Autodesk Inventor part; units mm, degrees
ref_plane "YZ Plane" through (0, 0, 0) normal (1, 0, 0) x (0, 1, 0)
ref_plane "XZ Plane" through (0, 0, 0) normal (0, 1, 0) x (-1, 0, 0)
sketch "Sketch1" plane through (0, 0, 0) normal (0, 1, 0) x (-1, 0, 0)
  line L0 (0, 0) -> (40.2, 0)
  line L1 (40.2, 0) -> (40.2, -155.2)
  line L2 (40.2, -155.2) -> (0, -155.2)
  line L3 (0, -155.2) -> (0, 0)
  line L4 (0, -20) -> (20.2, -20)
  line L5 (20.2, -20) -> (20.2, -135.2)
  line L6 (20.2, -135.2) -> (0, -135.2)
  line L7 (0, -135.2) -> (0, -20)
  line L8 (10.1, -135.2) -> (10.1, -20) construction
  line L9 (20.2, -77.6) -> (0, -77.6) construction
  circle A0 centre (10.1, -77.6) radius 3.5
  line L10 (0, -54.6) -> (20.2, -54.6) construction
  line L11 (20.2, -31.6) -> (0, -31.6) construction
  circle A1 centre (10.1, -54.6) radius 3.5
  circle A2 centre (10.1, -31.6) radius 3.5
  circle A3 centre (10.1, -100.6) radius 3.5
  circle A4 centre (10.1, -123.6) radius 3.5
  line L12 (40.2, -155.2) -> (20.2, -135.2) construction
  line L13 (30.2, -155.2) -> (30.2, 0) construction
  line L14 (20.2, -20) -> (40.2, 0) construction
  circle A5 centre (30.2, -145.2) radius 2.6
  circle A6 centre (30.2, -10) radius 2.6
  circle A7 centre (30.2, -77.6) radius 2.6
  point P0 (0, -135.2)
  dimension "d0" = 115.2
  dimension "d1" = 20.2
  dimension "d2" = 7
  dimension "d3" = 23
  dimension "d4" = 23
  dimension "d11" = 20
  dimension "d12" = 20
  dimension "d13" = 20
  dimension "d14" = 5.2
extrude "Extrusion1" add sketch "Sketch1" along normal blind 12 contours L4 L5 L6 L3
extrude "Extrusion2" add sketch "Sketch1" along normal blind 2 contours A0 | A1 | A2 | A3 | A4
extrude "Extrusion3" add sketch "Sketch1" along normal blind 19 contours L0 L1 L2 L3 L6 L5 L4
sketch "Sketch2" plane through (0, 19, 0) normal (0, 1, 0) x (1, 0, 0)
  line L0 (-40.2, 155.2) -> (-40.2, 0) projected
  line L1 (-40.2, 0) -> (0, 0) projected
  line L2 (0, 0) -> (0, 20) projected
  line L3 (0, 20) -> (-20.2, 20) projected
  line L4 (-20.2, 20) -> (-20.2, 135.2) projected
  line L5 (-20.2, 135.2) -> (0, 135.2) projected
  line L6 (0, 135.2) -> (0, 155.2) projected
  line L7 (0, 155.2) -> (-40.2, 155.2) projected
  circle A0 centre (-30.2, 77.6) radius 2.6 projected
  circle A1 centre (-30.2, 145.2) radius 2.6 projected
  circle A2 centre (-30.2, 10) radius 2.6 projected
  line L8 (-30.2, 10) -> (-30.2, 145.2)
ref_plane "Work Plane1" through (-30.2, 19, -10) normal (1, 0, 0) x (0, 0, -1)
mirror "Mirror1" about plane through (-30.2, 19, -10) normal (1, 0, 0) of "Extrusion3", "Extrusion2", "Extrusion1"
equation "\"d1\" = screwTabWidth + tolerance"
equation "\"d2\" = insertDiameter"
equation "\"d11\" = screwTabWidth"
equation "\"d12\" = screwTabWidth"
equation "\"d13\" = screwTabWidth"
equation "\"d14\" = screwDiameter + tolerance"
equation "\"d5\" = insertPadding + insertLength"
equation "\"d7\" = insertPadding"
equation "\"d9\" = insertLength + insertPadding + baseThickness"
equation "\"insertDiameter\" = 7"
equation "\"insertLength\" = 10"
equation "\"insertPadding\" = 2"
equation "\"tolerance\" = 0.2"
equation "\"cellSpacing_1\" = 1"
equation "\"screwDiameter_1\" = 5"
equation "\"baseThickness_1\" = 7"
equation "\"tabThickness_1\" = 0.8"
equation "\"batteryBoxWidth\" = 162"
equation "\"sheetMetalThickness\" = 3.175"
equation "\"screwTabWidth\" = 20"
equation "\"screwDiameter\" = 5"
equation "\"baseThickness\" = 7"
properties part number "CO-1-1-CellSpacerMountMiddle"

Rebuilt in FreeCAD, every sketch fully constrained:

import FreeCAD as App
import Part
import Sketcher
from FreeCAD import Vector

doc = App.newDocument("Part")
params = doc.addObject("Spreadsheet::Sheet", "Params")
for row, (alias, value) in enumerate([
    ("sketch1_diameter", "7 mm"),
    ("sketch1_width", "20.2 mm"),
    ("sketch1_height", "115.2 mm"),
    ("pad1_length", "12 mm"),
    ("sketch2_diameter", "7 mm"),
    ("pad2_length", "2 mm"),
    ("sketch3_diameter", "5.2 mm"),
    ("sketch3_height", "20 mm"),
    ("sketch3_width", "20.2 mm"),
    ("sketch3_height2", "115.2 mm"),
    ("pad3_length", "19 mm"),
], start=1):
    params.set(f"A{row}", alias)
    params.set(f"B{row}", "=" + value)
    params.setAlias(f"B{row}", alias)

body = doc.addObject("PartDesign::Body", "Body")

# Sketch on XZ plane
sketch1 = doc.addObject("Sketcher::SketchObject", "Sketch")
body.addObject(sketch1)
sketch1.AttachmentSupport = (doc.XZ_Plane, [""])
sketch1.MapMode = "FlatFace"
sketch1.addGeometry([
    Part.LineSegment(Vector(-20.2, -20, 0), Vector(0, -20, 0)),  # 0
    Part.LineSegment(Vector(0, -20, 0), Vector(0, -135.2, 0)),  # 1
    Part.LineSegment(Vector(0, -135.2, 0), Vector(-20.2, -135.2, 0)),  # 2
    Part.LineSegment(Vector(-20.2, -135.2, 0), Vector(-20.2, -20, 0)),  # 3
    Part.Circle(Vector(-10.1, -123.6, 0), Vector(0, 0, 1), 3.5),  # 4
    Part.Circle(Vector(-10.1, -100.6, 0), Vector(0, 0, 1), 3.5),  # 5
    Part.Circle(Vector(-10.1, -77.6, 0), Vector(0, 0, 1), 3.5),  # 6
    Part.Circle(Vector(-10.1, -54.6, 0), Vector(0, 0, 1), 3.5),  # 7
    Part.Circle(Vector(-10.1, -31.6, 0), Vector(0, 0, 1), 3.5),  # 8
], False)
sketch1.addConstraint([
    Sketcher.Constraint("Coincident", 0, 2, 1, 1),
    Sketcher.Constraint("Coincident", 1, 2, 2, 1),
    Sketcher.Constraint("Coincident", 2, 2, 3, 1),
    Sketcher.Constraint("Coincident", 3, 2, 0, 1),
    Sketcher.Constraint("Horizontal", 0),
    Sketcher.Constraint("Vertical", 1),
    Sketcher.Constraint("Horizontal", 2),
    Sketcher.Constraint("Vertical", 3),
    Sketcher.Constraint("Equal", 4, 5),
    Sketcher.Constraint("Equal", 5, 6),
    Sketcher.Constraint("Equal", 6, 7),
    Sketcher.Constraint("Equal", 7, 8),
    Sketcher.Constraint("PointOnObject", 0, 2, -2),
    Sketcher.Constraint("Vertical", 4, 3, 5, 3),
    Sketcher.Constraint("Vertical", 5, 3, 6, 3),
    Sketcher.Constraint("Vertical", 6, 3, 7, 3),
    Sketcher.Constraint("Vertical", 7, 3, 8, 3),
    Sketcher.Constraint("Diameter", 4, 7.0),
    Sketcher.Constraint("DistanceX", 0, 1, 0, 2, 20.2),
    Sketcher.Constraint("DistanceY", 1, 2, 1, 1, 115.2),
    Sketcher.Constraint("DistanceY", 0, 2, -1, 1, 20.0),
    Sketcher.Constraint("DistanceY", 4, 3, 5, 3, 23.0),
    Sketcher.Constraint("DistanceY", 5, 3, 6, 3, 23.0),
    Sketcher.Constraint("DistanceY", 6, 3, 7, 3, 23.0),
    Sketcher.Constraint("DistanceY", 7, 3, 8, 3, 23.0),
    Sketcher.Constraint("DistanceX", 4, 3, -1, 1, 10.1),
    Sketcher.Constraint("DistanceY", 4, 3, -1, 1, 123.6),
])
sketch1.setExpression("Constraints[17]", "Params.sketch1_diameter")
sketch1.setExpression("Constraints[18]", "Params.sketch1_width")
sketch1.setExpression("Constraints[19]", "Params.sketch1_height")
pad1 = doc.addObject("PartDesign::Pad", "Pad")
body.addObject(pad1)
pad1.Profile = sketch1
pad1.setExpression("Length", "Params.pad1_length")
pad1.Reversed = True

# Sketch on XZ plane
sketch2 = doc.addObject("Sketcher::SketchObject", "Sketch001")
body.addObject(sketch2)
sketch2.AttachmentSupport = (doc.XZ_Plane, [""])
sketch2.MapMode = "FlatFace"
sketch2.addGeometry([
    Part.Circle(Vector(-10.1, -77.6, 0), Vector(0, 0, 1), 3.5),  # 0
    Part.Circle(Vector(-10.1, -54.6, 0), Vector(0, 0, 1), 3.5),  # 1
    Part.Circle(Vector(-10.1, -31.6, 0), Vector(0, 0, 1), 3.5),  # 2
    Part.Circle(Vector(-10.1, -100.6, 0), Vector(0, 0, 1), 3.5),  # 3
    Part.Circle(Vector(-10.1, -123.6, 0), Vector(0, 0, 1), 3.5),  # 4
], False)
sketch2.addConstraint([
    Sketcher.Constraint("Equal", 0, 1),
    Sketcher.Constraint("Equal", 1, 2),
    Sketcher.Constraint("Equal", 2, 3),
    Sketcher.Constraint("Equal", 3, 4),
    Sketcher.Constraint("Vertical", 0, 3, 1, 3),
    Sketcher.Constraint("Vertical", 1, 3, 2, 3),
    Sketcher.Constraint("Vertical", 2, 3, 3, 3),
    Sketcher.Constraint("Vertical", 3, 3, 4, 3),
    Sketcher.Constraint("Diameter", 0, 7.0),
    Sketcher.Constraint("DistanceY", 0, 3, 1, 3, 23.0),
    Sketcher.Constraint("DistanceY", 1, 3, 2, 3, 23.0),
    Sketcher.Constraint("DistanceY", 3, 3, 0, 3, 23.0),
    Sketcher.Constraint("DistanceY", 4, 3, 3, 3, 23.0),
    Sketcher.Constraint("DistanceX", 0, 3, -1, 1, 10.1),
    Sketcher.Constraint("DistanceY", 0, 3, -1, 1, 77.6),
])
sketch2.setExpression("Constraints[8]", "Params.sketch2_diameter")
pad2 = doc.addObject("PartDesign::Pad", "Pad001")
body.addObject(pad2)
pad2.Profile = sketch2
pad2.setExpression("Length", "Params.pad2_length")
pad2.Reversed = True

# Sketch on XZ plane
sketch3 = doc.addObject("Sketcher::SketchObject", "Sketch002")
body.addObject(sketch3)
sketch3.AttachmentSupport = (doc.XZ_Plane, [""])
sketch3.MapMode = "FlatFace"
sketch3.addGeometry([
    Part.LineSegment(Vector(-40.2, 0, 0), Vector(0, 0, 0)),  # 0
    Part.LineSegment(Vector(0, 0, 0), Vector(0, -20, 0)),  # 1
    Part.LineSegment(Vector(0, -20, 0), Vector(-20.2, -20, 0)),  # 2
    Part.LineSegment(Vector(-20.2, -20, 0), Vector(-20.2, -135.2, 0)),  # 3
    Part.LineSegment(Vector(-20.2, -135.2, 0), Vector(0, -135.2, 0)),  # 4
    Part.LineSegment(Vector(0, -135.2, 0), Vector(0, -155.2, 0)),  # 5
    Part.LineSegment(Vector(0, -155.2, 0), Vector(-40.2, -155.2, 0)),  # 6
    Part.LineSegment(Vector(-40.2, -155.2, 0), Vector(-40.2, 0, 0)),  # 7
    Part.Circle(Vector(-30.2, -145.2, 0), Vector(0, 0, 1), 2.6),  # 8
    Part.Circle(Vector(-30.2, -77.6, 0), Vector(0, 0, 1), 2.6),  # 9
    Part.Circle(Vector(-30.2, -10, 0), Vector(0, 0, 1), 2.6),  # 10
], False)
sketch3.addConstraint([
    Sketcher.Constraint("Coincident", 0, 2, 1, 1),
    Sketcher.Constraint("Coincident", 1, 2, 2, 1),
    Sketcher.Constraint("Coincident", 2, 2, 3, 1),
    Sketcher.Constraint("Coincident", 3, 2, 4, 1),
    Sketcher.Constraint("Coincident", 4, 2, 5, 1),
    Sketcher.Constraint("Coincident", 5, 2, 6, 1),
    Sketcher.Constraint("Coincident", 6, 2, 7, 1),
    Sketcher.Constraint("Coincident", 7, 2, 0, 1),
    Sketcher.Constraint("Horizontal", 0),
    Sketcher.Constraint("Vertical", 1),
    Sketcher.Constraint("Horizontal", 2),
    Sketcher.Constraint("Vertical", 3),
    Sketcher.Constraint("Horizontal", 4),
    Sketcher.Constraint("Vertical", 5),
    Sketcher.Constraint("Horizontal", 6),
    Sketcher.Constraint("Vertical", 7),
    Sketcher.Constraint("Coincident", 0, 2, -1, 1),
    Sketcher.Constraint("Equal", 8, 9),
    Sketcher.Constraint("Equal", 9, 10),
    Sketcher.Constraint("PointOnObject", 4, 2, -2),
    Sketcher.Constraint("Vertical", 8, 3, 9, 3),
    Sketcher.Constraint("Vertical", 9, 3, 10, 3),
    Sketcher.Constraint("Equal", 1, 5),
    Sketcher.Constraint("Diameter", 8, 5.2),
    Sketcher.Constraint("DistanceY", 1, 2, 1, 1, 20.0),
    Sketcher.Constraint("DistanceX", 2, 2, 2, 1, 20.2),
    Sketcher.Constraint("DistanceY", 3, 2, 3, 1, 115.2),
    Sketcher.Constraint("DistanceX", 6, 2, 3, 2, 20.0),
    Sketcher.Constraint("DistanceY", 10, 3, -1, 1, 10.0),
    Sketcher.Constraint("DistanceX", 10, 3, 2, 2, 10.0),
    Sketcher.Constraint("DistanceY", 8, 3, 3, 2, 10.0),
    Sketcher.Constraint("DistanceY", 9, 3, -1, 1, 77.6),
])
sketch3.setExpression("Constraints[23]", "Params.sketch3_diameter")
sketch3.setExpression("Constraints[24]", "Params.sketch3_height")
sketch3.setExpression("Constraints[25]", "Params.sketch3_width")
sketch3.setExpression("Constraints[26]", "Params.sketch3_height2")
pad3 = doc.addObject("PartDesign::Pad", "Pad002")
body.addObject(pad3)
pad3.Profile = sketch3
pad3.setExpression("Length", "Params.pad3_length")
pad3.Reversed = True
doc.recompute()

datumplane = doc.addObject("PartDesign::Plane", "DatumPlane")
body.addObject(datumplane)
datumplane.AttachmentSupport = (doc.YZ_Plane, [""])
datumplane.MapMode = "FlatFace"
datumplane.AttachmentOffset = App.Placement(Vector(0, 0, -30.2), App.Rotation())
mirrored = doc.addObject("PartDesign::Mirrored", "Mirrored")
body.addObject(mirrored)
mirrored.Originals = [pad3, pad2, pad1]
mirrored.MirrorPlane = (datumplane, [""])
body.Tip = mirrored

doc.recompute()
